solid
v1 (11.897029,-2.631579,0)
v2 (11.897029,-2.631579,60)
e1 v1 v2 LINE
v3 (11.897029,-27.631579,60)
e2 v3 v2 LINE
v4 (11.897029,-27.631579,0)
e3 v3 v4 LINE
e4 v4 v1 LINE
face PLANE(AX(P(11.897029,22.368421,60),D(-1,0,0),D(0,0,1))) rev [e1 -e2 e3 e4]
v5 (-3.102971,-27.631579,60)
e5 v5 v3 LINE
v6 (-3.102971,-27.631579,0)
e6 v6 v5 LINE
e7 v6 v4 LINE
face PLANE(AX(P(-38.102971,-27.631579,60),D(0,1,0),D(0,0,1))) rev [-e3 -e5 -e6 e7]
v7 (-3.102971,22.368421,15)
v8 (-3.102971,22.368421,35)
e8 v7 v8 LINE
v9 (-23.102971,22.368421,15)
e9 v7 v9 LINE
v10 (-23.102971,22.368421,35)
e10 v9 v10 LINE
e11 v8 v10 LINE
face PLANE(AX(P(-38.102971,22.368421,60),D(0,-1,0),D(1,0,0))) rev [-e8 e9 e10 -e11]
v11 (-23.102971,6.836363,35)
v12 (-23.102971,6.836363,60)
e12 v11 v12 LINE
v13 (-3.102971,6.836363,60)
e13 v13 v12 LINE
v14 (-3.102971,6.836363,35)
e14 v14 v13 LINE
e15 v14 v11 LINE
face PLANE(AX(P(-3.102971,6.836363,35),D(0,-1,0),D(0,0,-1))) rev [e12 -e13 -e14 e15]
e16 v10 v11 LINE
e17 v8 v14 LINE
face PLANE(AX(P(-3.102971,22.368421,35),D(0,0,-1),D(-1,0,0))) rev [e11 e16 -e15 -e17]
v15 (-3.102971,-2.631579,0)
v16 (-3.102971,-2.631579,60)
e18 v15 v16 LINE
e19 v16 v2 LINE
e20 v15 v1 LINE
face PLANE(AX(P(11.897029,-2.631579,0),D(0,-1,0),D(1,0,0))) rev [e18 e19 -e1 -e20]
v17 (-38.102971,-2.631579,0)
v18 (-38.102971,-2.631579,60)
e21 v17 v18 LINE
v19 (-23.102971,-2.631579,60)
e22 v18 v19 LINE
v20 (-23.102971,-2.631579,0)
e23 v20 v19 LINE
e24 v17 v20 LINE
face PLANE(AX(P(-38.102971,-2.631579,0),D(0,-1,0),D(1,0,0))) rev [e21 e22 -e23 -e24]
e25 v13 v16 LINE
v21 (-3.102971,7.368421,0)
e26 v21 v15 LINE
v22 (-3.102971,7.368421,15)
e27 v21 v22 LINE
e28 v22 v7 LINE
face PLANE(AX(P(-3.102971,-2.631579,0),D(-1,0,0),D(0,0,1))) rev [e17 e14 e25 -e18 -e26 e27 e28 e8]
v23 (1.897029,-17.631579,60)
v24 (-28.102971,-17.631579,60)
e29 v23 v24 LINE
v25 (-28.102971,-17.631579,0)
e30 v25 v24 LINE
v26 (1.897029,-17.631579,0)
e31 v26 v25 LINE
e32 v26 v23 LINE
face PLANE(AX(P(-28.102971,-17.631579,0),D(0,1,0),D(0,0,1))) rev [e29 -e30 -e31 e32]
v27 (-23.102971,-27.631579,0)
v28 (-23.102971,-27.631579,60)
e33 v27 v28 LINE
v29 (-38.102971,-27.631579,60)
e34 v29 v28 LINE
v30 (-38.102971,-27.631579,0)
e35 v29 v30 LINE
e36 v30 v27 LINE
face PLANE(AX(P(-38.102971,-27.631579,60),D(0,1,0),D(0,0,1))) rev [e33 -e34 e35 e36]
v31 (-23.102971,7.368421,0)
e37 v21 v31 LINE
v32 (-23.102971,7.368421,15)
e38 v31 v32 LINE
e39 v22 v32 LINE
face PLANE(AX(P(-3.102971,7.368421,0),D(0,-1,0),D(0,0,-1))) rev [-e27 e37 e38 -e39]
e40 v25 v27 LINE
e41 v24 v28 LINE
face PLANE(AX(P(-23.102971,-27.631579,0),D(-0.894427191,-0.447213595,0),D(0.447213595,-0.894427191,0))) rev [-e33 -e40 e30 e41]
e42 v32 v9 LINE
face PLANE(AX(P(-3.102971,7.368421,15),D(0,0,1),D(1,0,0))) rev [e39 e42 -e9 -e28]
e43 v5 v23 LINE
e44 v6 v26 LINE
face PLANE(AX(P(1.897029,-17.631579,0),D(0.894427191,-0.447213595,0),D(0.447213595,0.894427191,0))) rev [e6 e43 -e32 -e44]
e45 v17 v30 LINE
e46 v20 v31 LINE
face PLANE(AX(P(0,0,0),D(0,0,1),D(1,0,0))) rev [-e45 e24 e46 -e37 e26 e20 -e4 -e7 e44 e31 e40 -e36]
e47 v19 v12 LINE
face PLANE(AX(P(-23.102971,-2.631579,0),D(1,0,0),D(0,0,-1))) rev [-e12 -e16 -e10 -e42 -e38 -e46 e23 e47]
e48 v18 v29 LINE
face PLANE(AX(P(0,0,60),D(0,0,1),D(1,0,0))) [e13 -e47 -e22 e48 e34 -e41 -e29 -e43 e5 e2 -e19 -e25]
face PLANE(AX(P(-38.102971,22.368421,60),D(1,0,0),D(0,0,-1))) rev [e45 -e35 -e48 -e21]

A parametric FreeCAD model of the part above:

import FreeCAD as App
import Part
import Sketcher

V = App.Vector
Q = App.Units.Quantity

doc = App.newDocument("Part")
body = doc.addObject("PartDesign::Body", "Body")

sketch1 = body.newObject("Sketcher::SketchObject", "Sketch")
sketch1.AttachmentSupport = (doc.getObject("XY_Plane"), [""])
sketch1.MapMode = "FlatFace"
sketch1.addGeometry(Part.LineSegment(V(-38, 22, 0), V(-38, -28, 0)), False)
sketch1.addGeometry(Part.LineSegment(V(-38, -28, 0), V(12, -28, 0)), False)
sketch1.addGeometry(Part.LineSegment(V(12, -28, 0), V(12, 22, 0)), False)
sketch1.addGeometry(Part.LineSegment(V(12, 22, 0), V(-38, 22, 0)), False)
sketch1.addConstraint(Sketcher.Constraint("Coincident", 0, 2, 1, 1))
sketch1.addConstraint(Sketcher.Constraint("Coincident", 1, 2, 2, 1))
sketch1.addConstraint(Sketcher.Constraint("Coincident", 2, 2, 3, 1))
sketch1.addConstraint(Sketcher.Constraint("Coincident", 3, 2, 0, 1))
sketch1.addConstraint(Sketcher.Constraint("Vertical", 0))
sketch1.addConstraint(Sketcher.Constraint("Horizontal", 1))
sketch1.addConstraint(Sketcher.Constraint("Vertical", 2))
sketch1.addConstraint(Sketcher.Constraint("Horizontal", 3))
sketch1.addConstraint(Sketcher.Constraint("Equal", 3, 0))
sketch1.addConstraint(Sketcher.Constraint("DistanceX", 1, 1, 1, 2, Q("50 mm")))
sketch1.addConstraint(Sketcher.Constraint("DistanceX", 0, 2, -1, 1, Q("38.102971 mm")))
sketch1.addConstraint(Sketcher.Constraint("DistanceY", 0, 2, -1, 1, Q("27.631579 mm")))
pad1 = body.newObject("PartDesign::Pad", "Pad")
pad1.Profile = sketch1
pad1.Length = 60

sketch2 = body.newObject("Sketcher::SketchObject", "Sketch001")
sketch2.AttachmentSupport = (doc.getObject("XY_Plane"), [""])
sketch2.MapMode = "FlatFace"
sketch2.AttachmentOffset = App.Placement(V(0, 0, 60), App.Rotation())
sketch2.addGeometry(Part.LineSegment(V(2, -18, 0), V(-28, -18, 0)), False)
sketch2.addGeometry(Part.LineSegment(V(-28, -18, 0), V(-23, -28, 0)), False)
sketch2.addGeometry(Part.LineSegment(V(-23, -28, 0), V(-3, -28, 0)), False)
sketch2.addGeometry(Part.LineSegment(V(-3, -28, 0), V(2, -18, 0)), False)
sketch2.addConstraint(Sketcher.Constraint("Coincident", 0, 2, 1, 1))
sketch2.addConstraint(Sketcher.Constraint("Coincident", 1, 2, 2, 1))
sketch2.addConstraint(Sketcher.Constraint("Coincident", 2, 2, 3, 1))
sketch2.addConstraint(Sketcher.Constraint("Coincident", 3, 2, 0, 1))
sketch2.addConstraint(Sketcher.Constraint("Horizontal", 0))
sketch2.addConstraint(Sketcher.Constraint("Horizontal", 2))
sketch2.addConstraint(Sketcher.Constraint("Equal", 1, 3))
sketch2.addConstraint(Sketcher.Constraint("DistanceX", 0, 2, 0, 1, Q("30 mm")))
sketch2.addConstraint(Sketcher.Constraint("DistanceX", 2, 1, 2, 2, Q("20 mm")))
sketch2.addConstraint(Sketcher.Constraint("DistanceY", 1, 2, 0, 2, Q("10 mm")))
sketch2.addConstraint(Sketcher.Constraint("DistanceX", 0, 2, -1, 1, Q("28.102971 mm")))
sketch2.addConstraint(Sketcher.Constraint("DistanceY", 0, 2, -1, 1, Q("17.631579 mm")))
pocket1 = body.newObject("PartDesign::Pocket", "Pocket")
pocket1.Profile = sketch2
pocket1.Length = 60

sketch3 = body.newObject("Sketcher::SketchObject", "Sketch002")
sketch3.AttachmentSupport = (doc.getObject("XY_Plane"), [""])
sketch3.MapMode = "FlatFace"
sketch3.AttachmentOffset = App.Placement(V(0, 0, 60), App.Rotation())
sketch3.addGeometry(Part.LineSegment(V(-3, 22, 0), V(-3, -3, 0)), False)
sketch3.addGeometry(Part.LineSegment(V(-3, -3, 0), V(12, -3, 0)), False)
sketch3.addGeometry(Part.LineSegment(V(12, -3, 0), V(12, 22, 0)), False)
sketch3.addGeometry(Part.LineSegment(V(12, 22, 0), V(-3, 22, 0)), False)
sketch3.addGeometry(Part.LineSegment(V(-38, 22, 0), V(-38, -3, 0)), False)
sketch3.addGeometry(Part.LineSegment(V(-38, -3, 0), V(-23, -3, 0)), False)
sketch3.addGeometry(Part.LineSegment(V(-23, -3, 0), V(-23, 22, 0)), False)
sketch3.addGeometry(Part.LineSegment(V(-23, 22, 0), V(-38, 22, 0)), False)
sketch3.addConstraint(Sketcher.Constraint("Coincident", 0, 2, 1, 1))
sketch3.addConstraint(Sketcher.Constraint("Coincident", 1, 2, 2, 1))
sketch3.addConstraint(Sketcher.Constraint("Coincident", 2, 2, 3, 1))
sketch3.addConstraint(Sketcher.Constraint("Coincident", 3, 2, 0, 1))
sketch3.addConstraint(Sketcher.Constraint("Coincident", 4, 2, 5, 1))
sketch3.addConstraint(Sketcher.Constraint("Coincident", 5, 2, 6, 1))
sketch3.addConstraint(Sketcher.Constraint("Coincident", 6, 2, 7, 1))
sketch3.addConstraint(Sketcher.Constraint("Coincident", 7, 2, 4, 1))
sketch3.addConstraint(Sketcher.Constraint("Vertical", 0))
sketch3.addConstraint(Sketcher.Constraint("Horizontal", 1))
sketch3.addConstraint(Sketcher.Constraint("Vertical", 2))
sketch3.addConstraint(Sketcher.Constraint("Horizontal", 3))
sketch3.addConstraint(Sketcher.Constraint("Vertical", 4))
sketch3.addConstraint(Sketcher.Constraint("Horizontal", 5))
sketch3.addConstraint(Sketcher.Constraint("Vertical", 6))
sketch3.addConstraint(Sketcher.Constraint("Horizontal", 7))
sketch3.addConstraint(Sketcher.Constraint("Horizontal", 1, 2, 4, 2))
sketch3.addConstraint(Sketcher.Constraint("Horizontal", 3, 2, 6, 2))
sketch3.addConstraint(Sketcher.Constraint("Equal", 3, 5))
sketch3.addConstraint(Sketcher.Constraint("DistanceX", 1, 1, 1, 2, Q("15 mm")))
sketch3.addConstraint(Sketcher.Constraint("DistanceY", 0, 2, 0, 1, Q("25 mm")))
sketch3.addConstraint(Sketcher.Constraint("DistanceX", 4, 2, 0, 2, Q("35 mm")))
sketch3.addConstraint(Sketcher.Constraint("DistanceX", 0, 2, -1, 1, Q("3.102971 mm")))
sketch3.addConstraint(Sketcher.Constraint("DistanceY", 0, 2, -1, 1, Q("2.631579 mm")))
pocket2 = body.newObject("PartDesign::Pocket", "Pocket001")
pocket2.Profile = sketch3
pocket2.Length = 60

sketch4 = body.newObject("Sketcher::SketchObject", "Sketch003")
sketch4.AttachmentSupport = (doc.getObject("YZ_Plane"), [""])
sketch4.MapMode = "FlatFace"
sketch4.AttachmentOffset = App.Placement(V(0, 0, -23.102971), App.Rotation())
sketch4.addGeometry(Part.LineSegment(V(22, 0, 0), V(7, 0, 0)), False)
sketch4.addGeometry(Part.LineSegment(V(7, 0, 0), V(7, 15, 0)), False)
sketch4.addGeometry(Part.LineSegment(V(7, 15, 0), V(22, 15, 0)), False)
sketch4.addGeometry(Part.LineSegment(V(22, 15, 0), V(22, 0, 0)), False)
sketch4.addGeometry(Part.LineSegment(V(22, 35, 0), V(7, 35, 0)), False)
sketch4.addGeometry(Part.LineSegment(V(7, 35, 0), V(7, 60, 0)), False)
sketch4.addGeometry(Part.LineSegment(V(7, 60, 0), V(22, 60, 0)), False)
sketch4.addGeometry(Part.LineSegment(V(22, 60, 0), V(22, 35, 0)), False)
sketch4.addConstraint(Sketcher.Constraint("Coincident", 0, 2, 1, 1))
sketch4.addConstraint(Sketcher.Constraint("Coincident", 1, 2, 2, 1))
sketch4.addConstraint(Sketcher.Constraint("Coincident", 2, 2, 3, 1))
sketch4.addConstraint(Sketcher.Constraint("Coincident", 3, 2, 0, 1))
sketch4.addConstraint(Sketcher.Constraint("Coincident", 4, 2, 5, 1))
sketch4.addConstraint(Sketcher.Constraint("Coincident", 5, 2, 6, 1))
sketch4.addConstraint(Sketcher.Constraint("Coincident", 6, 2, 7, 1))
sketch4.addConstraint(Sketcher.Constraint("Coincident", 7, 2, 4, 1))
sketch4.addConstraint(Sketcher.Constraint("Horizontal", 0))
sketch4.addConstraint(Sketcher.Constraint("Vertical", 1))
sketch4.addConstraint(Sketcher.Constraint("Horizontal", 2))
sketch4.addConstraint(Sketcher.Constraint("Vertical", 3))
sketch4.addConstraint(Sketcher.Constraint("Horizontal", 4))
sketch4.addConstraint(Sketcher.Constraint("Vertical", 5))
sketch4.addConstraint(Sketcher.Constraint("Horizontal", 6))
sketch4.addConstraint(Sketcher.Constraint("Vertical", 7))
sketch4.addConstraint(Sketcher.Constraint("PointOnObject", 0, 2, -1))
sketch4.addConstraint(Sketcher.Constraint("Vertical", 3, 2, 6, 2))
sketch4.addConstraint(Sketcher.Constraint("Equal", 2, 1))
sketch4.addConstraint(Sketcher.Constraint("DistanceX", 0, 2, 0, 1, Q("15 mm")))
sketch4.addConstraint(Sketcher.Constraint("DistanceY", 5, 1, 5, 2, Q("25 mm")))
sketch4.addConstraint(Sketcher.Constraint("DistanceY", -1, 1, 4, 2, Q("35 mm")))
sketch4.addConstraint(Sketcher.Constraint("DistanceX", 4, 2, 4, 1, Q("15.532058 mm")))
sketch4.addConstraint(Sketcher.Constraint("DistanceX", -1, 1, 0, 2, Q("7.368421 mm")))
pocket3 = body.newObject("PartDesign::Pocket", "Pocket002")
pocket3.Profile = sketch4
pocket3.Length = 20
pocket3.Reversed = True

doc.recompute()
